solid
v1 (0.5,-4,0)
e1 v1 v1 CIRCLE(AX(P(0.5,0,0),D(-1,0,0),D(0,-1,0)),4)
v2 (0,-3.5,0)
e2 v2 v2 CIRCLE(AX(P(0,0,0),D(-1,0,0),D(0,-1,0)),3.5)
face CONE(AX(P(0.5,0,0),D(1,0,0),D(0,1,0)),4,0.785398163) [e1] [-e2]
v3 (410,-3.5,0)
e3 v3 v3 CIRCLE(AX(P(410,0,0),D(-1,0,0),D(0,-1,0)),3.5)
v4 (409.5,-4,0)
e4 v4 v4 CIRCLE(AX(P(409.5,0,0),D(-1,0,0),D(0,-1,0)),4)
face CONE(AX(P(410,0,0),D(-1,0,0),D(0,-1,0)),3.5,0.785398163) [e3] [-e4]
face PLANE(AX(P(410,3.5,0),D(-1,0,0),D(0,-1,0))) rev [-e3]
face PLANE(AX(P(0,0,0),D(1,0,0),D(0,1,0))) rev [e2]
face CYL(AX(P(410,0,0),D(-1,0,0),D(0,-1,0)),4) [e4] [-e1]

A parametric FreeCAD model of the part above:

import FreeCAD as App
import Part
import Sketcher

V = App.Vector

doc = App.newDocument("Part")
params = doc.addObject("Spreadsheet::Sheet", "Params")
for row, (alias, value) in enumerate([
    ("sketch1_width", "410 mm"),
    ("sketch1_width2", "409 mm"),
    ("sketch1_height", "3.5 mm"),
    ("revolution_angle", "360 deg"),
], start=1):
    params.set(f"A{row}", alias)
    params.set(f"B{row}", "=" + value)
    params.setAlias(f"B{row}", alias)

body = doc.addObject("PartDesign::Body", "Body")

# Sketch on XY plane
sketch1 = body.newObject("Sketcher::SketchObject", "Sketch")
sketch1.AttachmentSupport = (doc.getObject("XY_Plane"), [""])
sketch1.MapMode = "FlatFace"
sketch1.addGeometry([
    Part.LineSegment(V(0, 3.5, 0), V(0, 0, 0)),  # 0
    Part.LineSegment(V(0, 0, 0), V(410, 0, 0)),  # 1
    Part.LineSegment(V(410, 0, 0), V(410, 3.5, 0)),  # 2
    Part.LineSegment(V(410, 3.5, 0), V(409.5, 4, 0)),  # 3
    Part.LineSegment(V(409.5, 4, 0), V(0.5, 4, 0)),  # 4
    Part.LineSegment(V(0.5, 4, 0), V(0, 3.5, 0)),  # 5
], False)
sketch1.addConstraint([
    Sketcher.Constraint("Coincident", 0, 2, 1, 1),
    Sketcher.Constraint("Coincident", 1, 2, 2, 1),
    Sketcher.Constraint("Coincident", 2, 2, 3, 1),
    Sketcher.Constraint("Coincident", 3, 2, 4, 1),
    Sketcher.Constraint("Coincident", 4, 2, 5, 1),
    Sketcher.Constraint("Coincident", 5, 2, 0, 1),
    Sketcher.Constraint("Vertical", 0),
    Sketcher.Constraint("Horizontal", 1),
    Sketcher.Constraint("Vertical", 2),
    Sketcher.Constraint("Horizontal", 4),
    Sketcher.Constraint("Coincident", 0, 2, -1, 1),
    Sketcher.Constraint("Perpendicular", 3, 5),
    Sketcher.Constraint("Horizontal", 2, 2, 5, 2),
    Sketcher.Constraint("Equal", 3, 5),
    Sketcher.Constraint("DistanceX", 1, 1, 1, 2, 410.0),
    Sketcher.Constraint("DistanceX", 4, 2, 4, 1, 409.0),
    Sketcher.Constraint("DistanceY", 0, 2, 0, 1, 3.5),
])
sketch1.setExpression("Constraints[14]", "Params.sketch1_width")
sketch1.setExpression("Constraints[15]", "Params.sketch1_width2")
sketch1.setExpression("Constraints[16]", "Params.sketch1_height")
revolution = body.newObject("PartDesign::Revolution", "Revolution")
revolution.Profile = sketch1
revolution.ReferenceAxis = (sketch1, ["H_Axis"])
revolution.setExpression("Angle", "Params.revolution_angle")

doc.recompute()
